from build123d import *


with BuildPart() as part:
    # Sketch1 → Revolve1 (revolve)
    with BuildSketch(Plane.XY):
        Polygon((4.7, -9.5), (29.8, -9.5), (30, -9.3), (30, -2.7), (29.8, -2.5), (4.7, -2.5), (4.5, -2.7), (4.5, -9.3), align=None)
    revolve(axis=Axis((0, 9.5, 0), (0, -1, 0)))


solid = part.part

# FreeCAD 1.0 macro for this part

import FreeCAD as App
import Part
import Sketcher

V = App.Vector
Q = App.Units.Quantity


def add_polygon(sketch, points):
    """Adds a closed chain of lines whose ends are joined by coincident constraints."""
    first, n = sketch.GeometryCount, len(points)
    for a, b in zip(points, points[1:] + points[:1]):
        sketch.addGeometry(Part.LineSegment(App.Vector(*a, 0), App.Vector(*b, 0)), False)
    for i in range(n):
        sketch.addConstraint(Sketcher.Constraint("Coincident", first + i, 2, first + (i + 1) % n, 1))

doc = App.newDocument("Part")
body = doc.addObject("PartDesign::Body", "Body")

# Sketch on XY plane
sketch1 = body.newObject("Sketcher::SketchObject", "Sketch")
sketch1.AttachmentSupport = (doc.getObject("XY_Plane"), [""])
sketch1.MapMode = "FlatFace"
add_polygon(sketch1, [(4.7, -9.5), (29.8, -9.5), (30, -9.3), (30, -2.7), (29.8, -2.5), (4.7, -2.5), (4.5, -2.7), (4.5, -9.3)])  # lines 0-7
sketch1.addConstraint([
    Sketcher.Constraint("Horizontal", 0),
    Sketcher.Constraint("Vertical", 2),
    Sketcher.Constraint("Horizontal", 4),
    Sketcher.Constraint("Vertical", 6),
    Sketcher.Constraint("Perpendicular", 1, 3),
    Sketcher.Constraint("Perpendicular", 3, 5),
    Sketcher.Constraint("Perpendicular", 5, 7),
    Sketcher.Constraint("Horizontal", 2, 2, 5, 2),
    Sketcher.Constraint("Horizontal", 1, 2, 6, 2),
    Sketcher.Constraint("Vertical", 0, 2, 3, 2),
    Sketcher.Constraint("Vertical", 4, 2, 7, 2),
    Sketcher.Constraint("DistanceX", 0, 1, 0, 2, Q("25.1 mm")),
    Sketcher.Constraint("DistanceY", 2, 1, 2, 2, Q("6.6 mm")),
    Sketcher.Constraint("DistanceX", -1, 1, 1, 2, Q("30 mm")),
    Sketcher.Constraint("DistanceY", 0, 2, 3, 2, Q("7 mm")),
    Sketcher.Constraint("DistanceY", 0, 2, -1, 1, Q("9.5 mm")),
])
revolution = body.newObject("PartDesign::Revolution", "Revolution")
revolution.Profile = sketch1
revolution.ReferenceAxis = (sketch1, ["V_Axis"])
revolution.Angle = 360

doc.recompute()
